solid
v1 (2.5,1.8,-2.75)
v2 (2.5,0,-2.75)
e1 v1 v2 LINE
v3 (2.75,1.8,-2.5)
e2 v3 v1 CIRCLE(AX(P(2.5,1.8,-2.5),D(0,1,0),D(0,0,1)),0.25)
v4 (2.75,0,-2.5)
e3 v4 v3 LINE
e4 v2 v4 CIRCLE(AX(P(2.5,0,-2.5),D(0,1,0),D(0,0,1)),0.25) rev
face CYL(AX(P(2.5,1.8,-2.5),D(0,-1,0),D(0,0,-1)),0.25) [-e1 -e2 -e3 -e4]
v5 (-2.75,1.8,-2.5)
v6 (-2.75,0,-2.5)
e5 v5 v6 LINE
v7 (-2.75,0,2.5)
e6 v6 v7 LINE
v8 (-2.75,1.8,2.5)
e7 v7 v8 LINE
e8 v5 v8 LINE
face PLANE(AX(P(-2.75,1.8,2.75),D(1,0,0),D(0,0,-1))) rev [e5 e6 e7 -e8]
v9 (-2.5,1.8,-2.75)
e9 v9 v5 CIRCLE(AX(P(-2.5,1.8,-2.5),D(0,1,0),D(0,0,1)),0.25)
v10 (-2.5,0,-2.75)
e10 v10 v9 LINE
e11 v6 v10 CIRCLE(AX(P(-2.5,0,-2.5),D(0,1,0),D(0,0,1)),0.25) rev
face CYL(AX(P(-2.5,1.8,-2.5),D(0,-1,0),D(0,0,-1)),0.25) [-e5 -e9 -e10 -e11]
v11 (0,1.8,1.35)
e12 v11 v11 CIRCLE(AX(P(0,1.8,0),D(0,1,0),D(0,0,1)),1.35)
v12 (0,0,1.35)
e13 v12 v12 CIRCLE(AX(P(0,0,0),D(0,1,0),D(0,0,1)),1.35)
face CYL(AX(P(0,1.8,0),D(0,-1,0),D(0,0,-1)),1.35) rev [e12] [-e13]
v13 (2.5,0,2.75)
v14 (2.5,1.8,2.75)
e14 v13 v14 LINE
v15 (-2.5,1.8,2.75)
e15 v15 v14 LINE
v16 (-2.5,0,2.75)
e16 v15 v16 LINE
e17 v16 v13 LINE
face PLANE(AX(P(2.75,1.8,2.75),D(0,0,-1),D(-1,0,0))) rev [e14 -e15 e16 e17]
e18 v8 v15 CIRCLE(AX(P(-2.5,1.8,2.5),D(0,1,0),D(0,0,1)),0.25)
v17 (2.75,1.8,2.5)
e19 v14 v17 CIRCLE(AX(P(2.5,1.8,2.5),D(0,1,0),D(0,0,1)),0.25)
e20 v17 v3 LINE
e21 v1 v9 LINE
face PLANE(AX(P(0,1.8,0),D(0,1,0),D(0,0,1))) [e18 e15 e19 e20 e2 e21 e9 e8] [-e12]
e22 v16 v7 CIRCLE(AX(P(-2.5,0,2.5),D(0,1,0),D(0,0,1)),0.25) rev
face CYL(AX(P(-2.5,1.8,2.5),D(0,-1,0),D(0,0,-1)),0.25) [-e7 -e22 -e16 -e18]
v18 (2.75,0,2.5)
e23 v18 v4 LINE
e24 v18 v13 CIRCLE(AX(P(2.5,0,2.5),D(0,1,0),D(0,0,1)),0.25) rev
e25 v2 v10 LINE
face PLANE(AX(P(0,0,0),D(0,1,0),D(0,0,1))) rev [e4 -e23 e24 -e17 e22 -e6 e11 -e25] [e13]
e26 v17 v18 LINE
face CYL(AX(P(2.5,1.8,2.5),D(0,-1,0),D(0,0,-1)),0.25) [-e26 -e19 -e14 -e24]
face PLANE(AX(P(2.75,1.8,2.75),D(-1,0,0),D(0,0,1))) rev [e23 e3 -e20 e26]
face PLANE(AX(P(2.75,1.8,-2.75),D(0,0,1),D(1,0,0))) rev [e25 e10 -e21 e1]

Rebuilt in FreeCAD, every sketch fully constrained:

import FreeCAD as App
import Part
import Sketcher


def edges_at(feature, points):
    """Names of the edges that pass closest to the given points."""
    edges = feature.Shape.Edges
    near = lambda p: min(range(len(edges)), key=lambda i: edges[i].distToShape(Part.Vertex(*p))[0])
    return sorted({f"Edge{near(p) + 1}" for p in points})


def add_polygon(sketch, points):
    """Adds a closed chain of lines whose ends are joined by coincident constraints."""
    first, n = sketch.GeometryCount, len(points)
    for a, b in zip(points, points[1:] + points[:1]):
        sketch.addGeometry(Part.LineSegment(App.Vector(*a, 0), App.Vector(*b, 0)), False)
    for i in range(n):
        sketch.addConstraint(Sketcher.Constraint("Coincident", first + i, 2, first + (i + 1) % n, 1))

doc = App.newDocument("Part")
body = doc.addObject("PartDesign::Body", "Body")

sketch1 = body.newObject("Sketcher::SketchObject", "Sketch")
sketch1.AttachmentSupport = (doc.getObject("XZ_Plane"), [""])
sketch1.MapMode = "FlatFace"
add_polygon(sketch1, [(-2.75, -2.75), (-2.75, 2.75), (2.75, 2.75), (2.75, -2.75)])
sketch1.addGeometry(Part.Circle(App.Vector(0, 0, 0), App.Vector(0, 0, 1), 1.35), False)
sketch1.addConstraint(Sketcher.Constraint("Vertical", 0))
sketch1.addConstraint(Sketcher.Constraint("Horizontal", 1))
sketch1.addConstraint(Sketcher.Constraint("Vertical", 2))
sketch1.addConstraint(Sketcher.Constraint("Horizontal", 3))
sketch1.addConstraint(Sketcher.Constraint("Coincident", 4, 3, -1, 1))
sketch1.addConstraint(Sketcher.Constraint("Symmetric", 0, 2, 2, 2, -1, 1))
sketch1.addConstraint(Sketcher.Constraint("Equal", 3, 0))
sketch1.addConstraint(Sketcher.Constraint("Diameter", 4, 2.7))
sketch1.addConstraint(Sketcher.Constraint("DistanceX", 1, 1, 1, 2, 5.5))
pad1 = body.newObject("PartDesign::Pad", "Pad")
pad1.Profile = sketch1
pad1.Length = 1.8
pad1.Reversed = True
doc.recompute()

fillet = body.newObject("PartDesign::Fillet", "Fillet")
fillet.Base = (pad1, edges_at(pad1, [
    (-2.75, 0.9, -2.75),
    (2.75, 0.9, -2.75),
    (2.75, 0.9, 2.75),
    (-2.75, 0.9, 2.75),
]))
fillet.Radius = 0.25

doc.recompute()
